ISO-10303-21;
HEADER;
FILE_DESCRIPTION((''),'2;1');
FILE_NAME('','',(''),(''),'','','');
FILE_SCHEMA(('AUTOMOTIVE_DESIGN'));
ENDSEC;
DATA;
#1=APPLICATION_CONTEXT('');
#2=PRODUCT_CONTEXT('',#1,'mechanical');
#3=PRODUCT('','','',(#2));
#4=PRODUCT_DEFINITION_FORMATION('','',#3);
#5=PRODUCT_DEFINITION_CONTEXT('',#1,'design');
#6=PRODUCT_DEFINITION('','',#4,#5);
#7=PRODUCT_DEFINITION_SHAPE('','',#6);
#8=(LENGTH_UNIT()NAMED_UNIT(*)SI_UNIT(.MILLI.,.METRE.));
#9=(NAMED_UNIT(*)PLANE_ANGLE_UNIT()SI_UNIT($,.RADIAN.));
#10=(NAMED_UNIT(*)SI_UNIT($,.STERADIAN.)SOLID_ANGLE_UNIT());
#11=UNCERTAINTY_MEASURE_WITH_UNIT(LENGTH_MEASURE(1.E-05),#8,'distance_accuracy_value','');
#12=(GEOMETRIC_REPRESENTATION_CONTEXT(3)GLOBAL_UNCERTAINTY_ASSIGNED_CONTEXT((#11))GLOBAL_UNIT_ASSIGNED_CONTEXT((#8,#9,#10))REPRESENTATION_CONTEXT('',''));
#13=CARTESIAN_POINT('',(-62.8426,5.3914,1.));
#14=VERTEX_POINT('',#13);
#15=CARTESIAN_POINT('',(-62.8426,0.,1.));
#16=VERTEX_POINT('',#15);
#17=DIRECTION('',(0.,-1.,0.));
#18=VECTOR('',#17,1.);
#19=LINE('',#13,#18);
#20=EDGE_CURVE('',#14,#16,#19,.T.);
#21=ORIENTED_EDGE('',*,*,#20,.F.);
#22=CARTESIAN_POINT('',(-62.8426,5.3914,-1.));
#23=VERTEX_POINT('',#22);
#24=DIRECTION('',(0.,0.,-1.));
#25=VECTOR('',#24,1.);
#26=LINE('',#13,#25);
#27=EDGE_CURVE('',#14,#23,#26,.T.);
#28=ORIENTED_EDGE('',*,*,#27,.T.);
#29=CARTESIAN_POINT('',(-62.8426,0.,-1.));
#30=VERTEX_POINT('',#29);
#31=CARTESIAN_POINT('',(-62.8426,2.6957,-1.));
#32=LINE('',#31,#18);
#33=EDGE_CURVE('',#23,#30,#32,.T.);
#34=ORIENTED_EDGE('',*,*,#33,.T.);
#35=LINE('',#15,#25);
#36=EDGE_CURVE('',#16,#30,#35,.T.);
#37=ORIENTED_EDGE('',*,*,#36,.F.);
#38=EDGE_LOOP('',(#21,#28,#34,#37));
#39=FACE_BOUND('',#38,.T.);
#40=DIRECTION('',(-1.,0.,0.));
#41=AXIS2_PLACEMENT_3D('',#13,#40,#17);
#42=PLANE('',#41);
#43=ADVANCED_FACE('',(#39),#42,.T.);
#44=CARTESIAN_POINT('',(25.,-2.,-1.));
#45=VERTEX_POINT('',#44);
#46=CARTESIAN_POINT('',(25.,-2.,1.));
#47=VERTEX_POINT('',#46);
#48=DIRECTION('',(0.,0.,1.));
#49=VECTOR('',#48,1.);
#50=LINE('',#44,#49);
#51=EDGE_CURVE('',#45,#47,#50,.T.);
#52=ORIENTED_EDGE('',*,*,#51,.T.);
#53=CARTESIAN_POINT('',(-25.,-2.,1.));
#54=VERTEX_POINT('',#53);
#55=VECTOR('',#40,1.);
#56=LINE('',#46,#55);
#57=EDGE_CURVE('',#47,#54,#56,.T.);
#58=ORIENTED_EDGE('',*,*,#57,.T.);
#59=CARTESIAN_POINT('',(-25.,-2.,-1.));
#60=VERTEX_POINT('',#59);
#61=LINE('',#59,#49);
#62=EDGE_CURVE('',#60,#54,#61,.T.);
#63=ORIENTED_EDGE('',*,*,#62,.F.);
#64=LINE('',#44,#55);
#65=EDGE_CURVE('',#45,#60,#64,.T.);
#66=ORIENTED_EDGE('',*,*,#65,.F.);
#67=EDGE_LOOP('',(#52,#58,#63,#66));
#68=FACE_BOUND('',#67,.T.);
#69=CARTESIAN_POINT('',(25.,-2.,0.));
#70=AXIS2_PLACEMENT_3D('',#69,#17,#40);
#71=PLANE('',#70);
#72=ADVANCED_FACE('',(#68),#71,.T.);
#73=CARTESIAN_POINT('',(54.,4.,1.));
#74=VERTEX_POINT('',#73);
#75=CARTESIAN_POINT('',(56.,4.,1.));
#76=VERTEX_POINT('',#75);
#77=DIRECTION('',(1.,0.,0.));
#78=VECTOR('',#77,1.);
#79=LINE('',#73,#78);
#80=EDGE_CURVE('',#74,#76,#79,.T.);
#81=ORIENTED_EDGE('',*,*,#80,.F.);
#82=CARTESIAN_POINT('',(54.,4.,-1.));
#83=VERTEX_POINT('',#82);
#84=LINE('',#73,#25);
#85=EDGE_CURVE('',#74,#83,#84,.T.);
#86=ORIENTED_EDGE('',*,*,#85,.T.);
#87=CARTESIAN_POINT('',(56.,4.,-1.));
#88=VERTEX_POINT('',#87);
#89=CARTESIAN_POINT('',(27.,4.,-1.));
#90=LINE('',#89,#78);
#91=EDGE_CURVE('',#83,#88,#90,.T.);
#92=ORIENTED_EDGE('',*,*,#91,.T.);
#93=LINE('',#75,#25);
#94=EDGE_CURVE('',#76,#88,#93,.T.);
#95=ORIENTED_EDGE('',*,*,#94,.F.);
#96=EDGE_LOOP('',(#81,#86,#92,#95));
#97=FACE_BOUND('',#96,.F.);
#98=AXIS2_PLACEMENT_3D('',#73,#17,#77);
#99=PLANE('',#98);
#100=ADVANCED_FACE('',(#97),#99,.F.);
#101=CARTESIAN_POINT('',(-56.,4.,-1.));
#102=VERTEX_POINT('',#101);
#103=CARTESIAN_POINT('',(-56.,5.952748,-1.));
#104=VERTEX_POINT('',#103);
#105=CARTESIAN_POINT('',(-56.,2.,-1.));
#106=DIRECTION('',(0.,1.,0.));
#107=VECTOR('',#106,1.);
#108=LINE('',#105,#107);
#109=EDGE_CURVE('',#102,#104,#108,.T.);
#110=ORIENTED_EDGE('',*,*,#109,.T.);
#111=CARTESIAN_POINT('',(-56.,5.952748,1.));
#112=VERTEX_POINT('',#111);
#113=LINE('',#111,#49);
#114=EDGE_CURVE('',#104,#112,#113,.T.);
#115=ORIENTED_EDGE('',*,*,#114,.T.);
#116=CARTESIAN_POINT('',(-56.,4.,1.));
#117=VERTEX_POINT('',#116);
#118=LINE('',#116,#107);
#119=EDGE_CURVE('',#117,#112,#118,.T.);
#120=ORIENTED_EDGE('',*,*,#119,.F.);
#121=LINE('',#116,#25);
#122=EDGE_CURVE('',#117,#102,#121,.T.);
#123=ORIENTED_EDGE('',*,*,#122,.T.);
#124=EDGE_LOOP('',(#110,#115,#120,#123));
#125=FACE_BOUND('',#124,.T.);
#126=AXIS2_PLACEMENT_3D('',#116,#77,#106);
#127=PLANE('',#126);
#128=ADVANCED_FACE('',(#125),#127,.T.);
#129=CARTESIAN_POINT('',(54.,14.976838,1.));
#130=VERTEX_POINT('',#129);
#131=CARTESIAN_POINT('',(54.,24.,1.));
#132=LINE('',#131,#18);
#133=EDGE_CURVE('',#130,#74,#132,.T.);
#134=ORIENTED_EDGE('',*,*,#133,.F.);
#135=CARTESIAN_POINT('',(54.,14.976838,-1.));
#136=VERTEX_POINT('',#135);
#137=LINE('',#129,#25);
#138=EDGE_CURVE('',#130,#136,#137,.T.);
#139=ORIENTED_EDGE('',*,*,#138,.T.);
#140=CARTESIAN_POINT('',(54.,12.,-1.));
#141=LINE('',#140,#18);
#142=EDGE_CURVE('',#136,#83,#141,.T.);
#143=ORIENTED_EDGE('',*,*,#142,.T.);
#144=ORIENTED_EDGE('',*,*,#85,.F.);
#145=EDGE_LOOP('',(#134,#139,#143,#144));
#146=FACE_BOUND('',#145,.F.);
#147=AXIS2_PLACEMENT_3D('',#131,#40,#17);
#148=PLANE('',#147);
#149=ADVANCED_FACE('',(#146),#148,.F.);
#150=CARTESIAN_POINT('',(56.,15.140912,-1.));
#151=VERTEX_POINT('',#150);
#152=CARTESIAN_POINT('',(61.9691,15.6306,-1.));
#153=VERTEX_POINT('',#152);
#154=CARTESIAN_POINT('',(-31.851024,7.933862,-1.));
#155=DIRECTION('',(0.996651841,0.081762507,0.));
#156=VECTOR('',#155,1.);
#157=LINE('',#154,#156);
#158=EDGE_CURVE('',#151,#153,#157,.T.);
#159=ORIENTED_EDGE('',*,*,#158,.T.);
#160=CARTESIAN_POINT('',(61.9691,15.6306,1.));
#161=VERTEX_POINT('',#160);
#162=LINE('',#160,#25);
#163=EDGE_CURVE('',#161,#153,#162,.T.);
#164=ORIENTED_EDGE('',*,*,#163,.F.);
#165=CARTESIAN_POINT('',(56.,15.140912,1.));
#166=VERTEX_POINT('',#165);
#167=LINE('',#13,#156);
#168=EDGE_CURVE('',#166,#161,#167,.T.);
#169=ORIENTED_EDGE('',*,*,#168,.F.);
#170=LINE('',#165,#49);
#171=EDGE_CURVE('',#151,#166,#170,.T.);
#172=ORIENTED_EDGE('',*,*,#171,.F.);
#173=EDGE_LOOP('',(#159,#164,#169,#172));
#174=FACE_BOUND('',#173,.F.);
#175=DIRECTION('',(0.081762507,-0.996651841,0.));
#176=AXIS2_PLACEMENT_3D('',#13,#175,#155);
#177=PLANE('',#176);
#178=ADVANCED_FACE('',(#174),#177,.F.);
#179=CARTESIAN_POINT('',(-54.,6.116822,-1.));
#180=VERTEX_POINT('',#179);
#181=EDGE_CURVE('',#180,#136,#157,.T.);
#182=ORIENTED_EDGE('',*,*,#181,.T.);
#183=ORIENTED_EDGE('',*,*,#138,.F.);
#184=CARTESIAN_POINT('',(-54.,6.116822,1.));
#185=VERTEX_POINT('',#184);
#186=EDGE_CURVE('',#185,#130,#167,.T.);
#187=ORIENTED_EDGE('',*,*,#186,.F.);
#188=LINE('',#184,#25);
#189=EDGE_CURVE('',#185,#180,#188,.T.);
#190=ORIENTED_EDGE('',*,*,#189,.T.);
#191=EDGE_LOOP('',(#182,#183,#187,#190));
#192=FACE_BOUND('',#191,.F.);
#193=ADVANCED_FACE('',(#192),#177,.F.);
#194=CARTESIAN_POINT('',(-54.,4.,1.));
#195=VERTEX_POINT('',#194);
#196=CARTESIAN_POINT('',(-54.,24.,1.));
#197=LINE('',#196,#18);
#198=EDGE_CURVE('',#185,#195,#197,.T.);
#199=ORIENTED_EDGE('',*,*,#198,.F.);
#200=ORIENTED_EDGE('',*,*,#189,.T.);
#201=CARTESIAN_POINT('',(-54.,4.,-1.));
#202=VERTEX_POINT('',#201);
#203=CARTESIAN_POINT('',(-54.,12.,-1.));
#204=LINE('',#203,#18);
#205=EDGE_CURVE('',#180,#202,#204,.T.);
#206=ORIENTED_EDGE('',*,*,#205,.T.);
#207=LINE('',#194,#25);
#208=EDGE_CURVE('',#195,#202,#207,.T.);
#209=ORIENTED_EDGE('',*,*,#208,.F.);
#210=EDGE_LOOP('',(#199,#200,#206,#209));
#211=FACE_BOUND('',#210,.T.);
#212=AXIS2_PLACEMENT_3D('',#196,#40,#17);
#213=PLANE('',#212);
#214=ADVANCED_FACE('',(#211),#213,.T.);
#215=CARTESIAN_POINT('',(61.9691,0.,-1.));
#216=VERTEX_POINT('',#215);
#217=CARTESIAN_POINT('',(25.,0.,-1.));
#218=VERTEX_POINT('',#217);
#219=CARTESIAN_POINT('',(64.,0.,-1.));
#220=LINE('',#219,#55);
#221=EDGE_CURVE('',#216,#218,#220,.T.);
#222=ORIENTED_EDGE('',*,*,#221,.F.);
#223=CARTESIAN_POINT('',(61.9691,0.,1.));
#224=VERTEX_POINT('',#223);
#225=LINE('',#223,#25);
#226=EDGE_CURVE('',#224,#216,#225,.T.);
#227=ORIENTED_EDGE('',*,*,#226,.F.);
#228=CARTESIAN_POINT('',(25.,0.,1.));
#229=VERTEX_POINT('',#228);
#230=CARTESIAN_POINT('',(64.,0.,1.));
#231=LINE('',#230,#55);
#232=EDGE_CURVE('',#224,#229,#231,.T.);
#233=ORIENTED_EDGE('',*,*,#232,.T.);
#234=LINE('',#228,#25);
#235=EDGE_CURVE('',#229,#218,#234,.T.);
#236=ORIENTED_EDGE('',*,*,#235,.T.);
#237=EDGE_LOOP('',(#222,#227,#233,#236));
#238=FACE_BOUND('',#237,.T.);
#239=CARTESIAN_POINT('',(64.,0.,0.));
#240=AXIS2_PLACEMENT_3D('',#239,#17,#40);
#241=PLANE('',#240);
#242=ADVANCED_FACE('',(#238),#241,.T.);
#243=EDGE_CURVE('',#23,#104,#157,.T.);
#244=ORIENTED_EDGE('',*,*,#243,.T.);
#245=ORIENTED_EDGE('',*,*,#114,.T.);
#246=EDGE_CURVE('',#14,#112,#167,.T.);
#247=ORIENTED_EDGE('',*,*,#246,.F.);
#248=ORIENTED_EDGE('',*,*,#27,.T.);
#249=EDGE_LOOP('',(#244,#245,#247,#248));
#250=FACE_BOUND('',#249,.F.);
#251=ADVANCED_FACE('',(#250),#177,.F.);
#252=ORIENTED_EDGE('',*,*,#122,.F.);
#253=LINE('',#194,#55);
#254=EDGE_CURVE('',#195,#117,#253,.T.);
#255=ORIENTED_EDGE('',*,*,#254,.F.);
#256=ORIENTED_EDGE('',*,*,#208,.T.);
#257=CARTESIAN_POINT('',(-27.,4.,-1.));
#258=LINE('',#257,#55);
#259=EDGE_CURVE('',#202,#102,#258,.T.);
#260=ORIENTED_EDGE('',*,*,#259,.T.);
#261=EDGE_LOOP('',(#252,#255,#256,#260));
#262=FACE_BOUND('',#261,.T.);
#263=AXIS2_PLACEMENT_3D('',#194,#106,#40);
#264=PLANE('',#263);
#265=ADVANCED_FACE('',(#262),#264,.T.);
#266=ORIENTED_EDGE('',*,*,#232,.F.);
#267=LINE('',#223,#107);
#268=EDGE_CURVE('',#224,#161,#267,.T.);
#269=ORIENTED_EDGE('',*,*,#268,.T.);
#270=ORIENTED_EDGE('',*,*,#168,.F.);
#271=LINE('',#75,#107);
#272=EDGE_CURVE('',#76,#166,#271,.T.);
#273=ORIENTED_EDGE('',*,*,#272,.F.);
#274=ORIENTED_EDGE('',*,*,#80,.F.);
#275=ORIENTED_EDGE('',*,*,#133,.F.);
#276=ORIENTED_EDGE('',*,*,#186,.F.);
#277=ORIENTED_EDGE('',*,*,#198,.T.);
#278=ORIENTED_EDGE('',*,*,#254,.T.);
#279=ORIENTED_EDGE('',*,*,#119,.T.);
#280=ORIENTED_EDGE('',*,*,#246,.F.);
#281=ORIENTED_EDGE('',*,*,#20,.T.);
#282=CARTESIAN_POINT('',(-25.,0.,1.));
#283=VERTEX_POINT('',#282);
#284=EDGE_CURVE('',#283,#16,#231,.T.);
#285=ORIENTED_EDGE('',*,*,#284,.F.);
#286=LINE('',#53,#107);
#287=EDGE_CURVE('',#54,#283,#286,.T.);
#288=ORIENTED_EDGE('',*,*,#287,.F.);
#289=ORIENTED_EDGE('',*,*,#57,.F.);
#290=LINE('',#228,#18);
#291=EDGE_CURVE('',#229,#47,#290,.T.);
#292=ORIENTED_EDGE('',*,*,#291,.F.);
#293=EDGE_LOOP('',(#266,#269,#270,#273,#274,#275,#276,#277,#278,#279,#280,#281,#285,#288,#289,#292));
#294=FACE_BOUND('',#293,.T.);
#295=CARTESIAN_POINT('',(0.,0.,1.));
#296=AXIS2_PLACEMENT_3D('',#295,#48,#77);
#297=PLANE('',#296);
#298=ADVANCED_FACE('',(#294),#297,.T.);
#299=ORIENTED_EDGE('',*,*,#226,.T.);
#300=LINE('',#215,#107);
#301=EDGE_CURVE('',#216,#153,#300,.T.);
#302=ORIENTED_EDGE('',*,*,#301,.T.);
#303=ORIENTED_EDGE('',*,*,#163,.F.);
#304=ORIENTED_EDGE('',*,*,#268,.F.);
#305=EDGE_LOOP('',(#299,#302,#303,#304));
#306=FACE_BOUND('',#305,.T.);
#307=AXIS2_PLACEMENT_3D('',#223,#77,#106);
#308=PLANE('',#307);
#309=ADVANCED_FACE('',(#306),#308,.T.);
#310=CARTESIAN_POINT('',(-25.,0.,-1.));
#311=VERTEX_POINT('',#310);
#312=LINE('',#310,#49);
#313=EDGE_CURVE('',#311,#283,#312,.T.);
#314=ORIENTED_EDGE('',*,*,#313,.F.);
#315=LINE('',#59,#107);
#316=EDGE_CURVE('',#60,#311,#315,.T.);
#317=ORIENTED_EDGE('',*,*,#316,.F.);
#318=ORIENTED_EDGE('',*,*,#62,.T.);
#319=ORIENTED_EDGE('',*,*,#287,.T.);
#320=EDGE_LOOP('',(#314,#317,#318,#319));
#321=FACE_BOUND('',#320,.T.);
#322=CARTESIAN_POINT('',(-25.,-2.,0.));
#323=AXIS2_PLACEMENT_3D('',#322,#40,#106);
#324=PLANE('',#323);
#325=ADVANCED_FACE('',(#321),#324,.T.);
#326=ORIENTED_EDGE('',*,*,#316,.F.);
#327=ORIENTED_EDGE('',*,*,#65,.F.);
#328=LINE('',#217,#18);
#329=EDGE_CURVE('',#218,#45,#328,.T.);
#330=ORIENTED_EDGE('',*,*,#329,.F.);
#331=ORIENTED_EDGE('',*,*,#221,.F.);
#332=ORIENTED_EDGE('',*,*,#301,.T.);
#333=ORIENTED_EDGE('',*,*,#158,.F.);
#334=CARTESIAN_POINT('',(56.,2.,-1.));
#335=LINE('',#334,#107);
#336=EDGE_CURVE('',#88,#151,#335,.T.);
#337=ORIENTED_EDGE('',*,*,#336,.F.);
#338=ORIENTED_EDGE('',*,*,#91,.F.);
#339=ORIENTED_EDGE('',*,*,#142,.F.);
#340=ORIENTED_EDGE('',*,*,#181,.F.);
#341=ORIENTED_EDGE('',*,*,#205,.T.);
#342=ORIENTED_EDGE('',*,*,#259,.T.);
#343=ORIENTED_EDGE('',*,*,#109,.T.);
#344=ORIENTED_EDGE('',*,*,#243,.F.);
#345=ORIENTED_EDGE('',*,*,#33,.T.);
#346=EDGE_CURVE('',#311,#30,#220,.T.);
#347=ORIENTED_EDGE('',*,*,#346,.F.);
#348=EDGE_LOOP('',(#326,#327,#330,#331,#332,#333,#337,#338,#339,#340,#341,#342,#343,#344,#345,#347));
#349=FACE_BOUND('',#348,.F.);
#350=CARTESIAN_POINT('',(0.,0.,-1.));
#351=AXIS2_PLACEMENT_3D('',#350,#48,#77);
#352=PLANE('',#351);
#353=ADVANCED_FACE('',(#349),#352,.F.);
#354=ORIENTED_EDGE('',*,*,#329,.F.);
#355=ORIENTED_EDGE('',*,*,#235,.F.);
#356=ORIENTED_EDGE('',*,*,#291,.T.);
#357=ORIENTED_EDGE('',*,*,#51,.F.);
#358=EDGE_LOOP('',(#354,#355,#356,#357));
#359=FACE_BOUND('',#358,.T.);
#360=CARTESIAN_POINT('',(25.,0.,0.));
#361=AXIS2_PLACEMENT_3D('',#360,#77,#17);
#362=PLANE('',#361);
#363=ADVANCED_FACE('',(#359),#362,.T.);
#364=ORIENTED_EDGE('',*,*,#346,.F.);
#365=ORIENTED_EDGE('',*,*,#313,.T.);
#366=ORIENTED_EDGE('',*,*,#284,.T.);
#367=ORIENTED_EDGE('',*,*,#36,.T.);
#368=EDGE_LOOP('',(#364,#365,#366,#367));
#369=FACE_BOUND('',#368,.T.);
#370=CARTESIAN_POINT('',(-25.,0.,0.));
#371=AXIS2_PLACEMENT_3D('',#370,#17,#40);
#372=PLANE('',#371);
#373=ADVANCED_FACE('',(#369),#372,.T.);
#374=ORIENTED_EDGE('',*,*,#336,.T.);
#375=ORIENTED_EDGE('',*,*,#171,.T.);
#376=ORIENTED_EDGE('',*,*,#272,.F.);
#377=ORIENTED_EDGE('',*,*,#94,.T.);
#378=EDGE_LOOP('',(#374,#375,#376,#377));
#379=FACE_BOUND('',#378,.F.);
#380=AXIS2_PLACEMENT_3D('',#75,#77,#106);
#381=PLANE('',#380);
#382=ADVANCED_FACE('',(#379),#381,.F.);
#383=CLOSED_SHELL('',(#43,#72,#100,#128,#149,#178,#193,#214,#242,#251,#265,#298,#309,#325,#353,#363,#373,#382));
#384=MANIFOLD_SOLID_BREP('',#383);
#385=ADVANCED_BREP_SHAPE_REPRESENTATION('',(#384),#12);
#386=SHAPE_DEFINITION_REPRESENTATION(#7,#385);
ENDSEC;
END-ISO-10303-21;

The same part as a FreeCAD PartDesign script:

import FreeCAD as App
import Part
import Sketcher
Q = App.Units.Quantity

doc = App.newDocument("Part")
params = doc.addObject("Spreadsheet::Sheet", "Params")
for row, (alias, value) in enumerate([
    ("sketch1_width", "128 mm"),
    ("sketch1_width2", "50 mm"),
    ("sketch1_height", "2 mm"),
    ("pad1_length", "2 mm"),
    ("sketch2_width", "10 mm"),
    ("sketch2_height", "60 mm"),
    ("sketch3_height", "20 mm"),
    ("sketch3_width", "2 mm"),
], start=1):
    params.set(f"A{row}", alias)
    params.set(f"B{row}", "=" + value)
    params.setAlias(f"B{row}", alias)

body = doc.addObject("PartDesign::Body", "Body")

# Sketch on XY plane
sketch1 = body.newObject("Sketcher::SketchObject", "Sketch")
sketch1.AttachmentSupport = (doc.getObject("XY_Plane"), [""])
sketch1.MapMode = "FlatFace"
sketch1.addGeometry([
    Part.LineSegment(App.Vector(64, 50, 0), App.Vector(-64, 50, 0)),  # 0
    Part.LineSegment(App.Vector(-64, 50, 0), App.Vector(-64, 0, 0)),  # 1
    Part.LineSegment(App.Vector(-64, 0, 0), App.Vector(-25, 0, 0)),  # 2
    Part.LineSegment(App.Vector(-25, 0, 0), App.Vector(-25, -2, 0)),  # 3
    Part.LineSegment(App.Vector(-25, -2, 0), App.Vector(25, -2, 0)),  # 4
    Part.LineSegment(App.Vector(25, -2, 0), App.Vector(25, 0, 0)),  # 5
    Part.LineSegment(App.Vector(25, 0, 0), App.Vector(64, 0, 0)),  # 6
    Part.LineSegment(App.Vector(64, 0, 0), App.Vector(64, 50, 0)),  # 7
], False)
sketch1.addConstraint([
    Sketcher.Constraint("Coincident", 0, 2, 1, 1),
    Sketcher.Constraint("Coincident", 1, 2, 2, 1),
    Sketcher.Constraint("Coincident", 2, 2, 3, 1),
    Sketcher.Constraint("Coincident", 3, 2, 4, 1),
    Sketcher.Constraint("Coincident", 4, 2, 5, 1),
    Sketcher.Constraint("Coincident", 5, 2, 6, 1),
    Sketcher.Constraint("Coincident", 6, 2, 7, 1),
    Sketcher.Constraint("Coincident", 7, 2, 0, 1),
    Sketcher.Constraint("Horizontal", 0),
    Sketcher.Constraint("Vertical", 1),
    Sketcher.Constraint("Horizontal", 2),
    Sketcher.Constraint("Vertical", 3),
    Sketcher.Constraint("Horizontal", 4),
    Sketcher.Constraint("Vertical", 5),
    Sketcher.Constraint("Horizontal", 6),
    Sketcher.Constraint("Vertical", 7),
    Sketcher.Constraint("Symmetric", 2, 2, 5, 2, -1, 1),
    Sketcher.Constraint("Symmetric", 1, 2, 6, 2, -2),
    Sketcher.Constraint("Equal", 4, 1),
    Sketcher.Constraint("DistanceX", 0, 2, 0, 1, 128.0),
    Sketcher.Constraint("DistanceX", 4, 1, 4, 2, 50.0),
    Sketcher.Constraint("DistanceY", 3, 2, 3, 1, 2.0),
])
sketch1.setExpression("Constraints[19]", "Params.sketch1_width")
sketch1.setExpression("Constraints[20]", "Params.sketch1_width2")
sketch1.setExpression("Constraints[21]", "Params.sketch1_height")
pad1 = body.newObject("PartDesign::Pad", "Pad")
pad1.Profile = sketch1
pad1.setExpression("Length", "Params.pad1_length")
pad1.Midplane = True

# Sketch on XY plane
sketch2 = body.newObject("Sketcher::SketchObject", "Sketch001")
sketch2.AttachmentSupport = (doc.getObject("XY_Plane"), [""])
sketch2.MapMode = "FlatFace"
sketch2.AttachmentOffset = App.Placement(App.Vector(0, 0, 1), App.Rotation())
sketch2.addGeometry([
    Part.LineSegment(App.Vector(-63, 0, 0), App.Vector(-63, 5, 0)),  # 0
    Part.LineSegment(App.Vector(-63, 5, 0), App.Vector(62, 16, 0)),  # 1
    Part.LineSegment(App.Vector(62, 16, 0), App.Vector(62, 0, 0)),  # 2
    Part.LineSegment(App.Vector(62, 0, 0), App.Vector(72, 0, 0)),  # 3
    Part.LineSegment(App.Vector(72, 0, 0), App.Vector(72, 60, 0)),  # 4
    Part.LineSegment(App.Vector(72, 60, 0), App.Vector(-73, 60, 0)),  # 5
    Part.LineSegment(App.Vector(-73, 60, 0), App.Vector(-73, 0, 0)),  # 6
    Part.LineSegment(App.Vector(-73, 0, 0), App.Vector(-63, 0, 0)),  # 7
], False)
sketch2.addConstraint([
    Sketcher.Constraint("Coincident", 0, 2, 1, 1),
    Sketcher.Constraint("Coincident", 1, 2, 2, 1),
    Sketcher.Constraint("Coincident", 2, 2, 3, 1),
    Sketcher.Constraint("Coincident", 3, 2, 4, 1),
    Sketcher.Constraint("Coincident", 4, 2, 5, 1),
    Sketcher.Constraint("Coincident", 5, 2, 6, 1),
    Sketcher.Constraint("Coincident", 6, 2, 7, 1),
    Sketcher.Constraint("Coincident", 7, 2, 0, 1),
    Sketcher.Constraint("Vertical", 0),
    Sketcher.Constraint("Vertical", 2),
    Sketcher.Constraint("Horizontal", 3),
    Sketcher.Constraint("Vertical", 4),
    Sketcher.Constraint("Horizontal", 5),
    Sketcher.Constraint("Vertical", 6),
    Sketcher.Constraint("Horizontal", 7),
    Sketcher.Constraint("PointOnObject", 2, 2, -1),
    Sketcher.Constraint("PointOnObject", 6, 2, -1),
    Sketcher.Constraint("Equal", 3, 7),
    Sketcher.Constraint("DistanceX", 3, 1, 3, 2, 10.0),
    Sketcher.Constraint("DistanceY", 4, 1, 4, 2, 60.0),
    Sketcher.Constraint("Angle", 1, Q("4.69 deg")),
    Sketcher.Constraint("Distance", 1, 125.231),
    Sketcher.Constraint("DistanceY", 0, 1, 0, 2, 5.3914),
    Sketcher.Constraint("DistanceX", -1, 1, 1, 2, 61.969),
])
sketch2.setExpression("Constraints[18]", "Params.sketch2_width")
sketch2.setExpression("Constraints[19]", "Params.sketch2_height")
pocket1 = body.newObject("PartDesign::Pocket", "Pocket")
pocket1.Profile = sketch2
pocket1.Type = "ThroughAll"

# Sketch on XY plane
sketch3 = body.newObject("Sketcher::SketchObject", "Sketch002")
sketch3.AttachmentSupport = (doc.getObject("XY_Plane"), [""])
sketch3.MapMode = "FlatFace"
sketch3.AttachmentOffset = App.Placement(App.Vector(0, 0, 1), App.Rotation())
sketch3.addGeometry([
    Part.LineSegment(App.Vector(-56, 4, 0), App.Vector(-54, 4, 0)),  # 0
    Part.LineSegment(App.Vector(-54, 4, 0), App.Vector(-54, 24, 0)),  # 1
    Part.LineSegment(App.Vector(-54, 24, 0), App.Vector(-56, 24, 0)),  # 2
    Part.LineSegment(App.Vector(-56, 24, 0), App.Vector(-56, 4, 0)),  # 3
    Part.LineSegment(App.Vector(56, 4, 0), App.Vector(56, 24, 0)),  # 4
    Part.LineSegment(App.Vector(56, 24, 0), App.Vector(54, 24, 0)),  # 5
    Part.LineSegment(App.Vector(54, 24, 0), App.Vector(54, 4, 0)),  # 6
    Part.LineSegment(App.Vector(54, 4, 0), App.Vector(56, 4, 0)),  # 7
], False)
sketch3.addConstraint([
    Sketcher.Constraint("Coincident", 0, 2, 1, 1),
    Sketcher.Constraint("Coincident", 1, 2, 2, 1),
    Sketcher.Constraint("Coincident", 2, 2, 3, 1),
    Sketcher.Constraint("Coincident", 3, 2, 0, 1),
    Sketcher.Constraint("Coincident", 4, 2, 5, 1),
    Sketcher.Constraint("Coincident", 5, 2, 6, 1),
    Sketcher.Constraint("Coincident", 6, 2, 7, 1),
    Sketcher.Constraint("Coincident", 7, 2, 4, 1),
    Sketcher.Constraint("Horizontal", 0),
    Sketcher.Constraint("Vertical", 1),
    Sketcher.Constraint("Horizontal", 2),
    Sketcher.Constraint("Vertical", 3),
    Sketcher.Constraint("Vertical", 4),
    Sketcher.Constraint("Horizontal", 5),
    Sketcher.Constraint("Vertical", 6),
    Sketcher.Constraint("Horizontal", 7),
    Sketcher.Constraint("Symmetric", 2, 2, 4, 2, -2),
    Sketcher.Constraint("Symmetric", 0, 2, 6, 2, -2),
    Sketcher.Constraint("DistanceY", 1, 1, 1, 2, 20.0),
    Sketcher.Constraint("DistanceY", -1, 1, 0, 2, 4.0),
    Sketcher.Constraint("DistanceX", 0, 1, 0, 2, 2.0),
    Sketcher.Constraint("DistanceX", 0, 2, -1, 1, 54.0),
])
sketch3.setExpression("Constraints[18]", "Params.sketch3_height")
sketch3.setExpression("Constraints[20]", "Params.sketch3_width")
pocket2 = body.newObject("PartDesign::Pocket", "Pocket001")
pocket2.Profile = sketch3
pocket2.Type = "ThroughAll"

doc.recompute()
